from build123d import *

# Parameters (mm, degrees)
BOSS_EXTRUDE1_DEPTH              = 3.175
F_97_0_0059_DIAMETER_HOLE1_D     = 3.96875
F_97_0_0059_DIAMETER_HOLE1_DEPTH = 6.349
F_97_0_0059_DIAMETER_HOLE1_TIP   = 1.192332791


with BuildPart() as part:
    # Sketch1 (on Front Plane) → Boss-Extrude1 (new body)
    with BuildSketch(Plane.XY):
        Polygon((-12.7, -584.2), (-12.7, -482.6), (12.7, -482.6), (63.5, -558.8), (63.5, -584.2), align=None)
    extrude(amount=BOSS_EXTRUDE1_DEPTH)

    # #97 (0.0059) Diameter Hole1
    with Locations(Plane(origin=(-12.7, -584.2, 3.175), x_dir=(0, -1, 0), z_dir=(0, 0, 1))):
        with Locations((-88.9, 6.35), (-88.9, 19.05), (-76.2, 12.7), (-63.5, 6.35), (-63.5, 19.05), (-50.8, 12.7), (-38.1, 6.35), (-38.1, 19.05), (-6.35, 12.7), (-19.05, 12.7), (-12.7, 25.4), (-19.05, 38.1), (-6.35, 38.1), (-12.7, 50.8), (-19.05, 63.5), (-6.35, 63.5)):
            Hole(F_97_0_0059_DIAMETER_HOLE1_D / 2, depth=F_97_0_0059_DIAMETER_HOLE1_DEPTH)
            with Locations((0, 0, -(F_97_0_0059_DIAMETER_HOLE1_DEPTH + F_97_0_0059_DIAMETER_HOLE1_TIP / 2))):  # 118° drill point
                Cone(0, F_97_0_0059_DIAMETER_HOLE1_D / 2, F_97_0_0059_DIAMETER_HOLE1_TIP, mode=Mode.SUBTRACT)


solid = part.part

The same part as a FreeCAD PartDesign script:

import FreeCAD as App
import Part
import Sketcher

V = App.Vector
Q = App.Units.Quantity


def add_polygon(sketch, points):
    """Adds a closed chain of lines whose ends are joined by coincident constraints."""
    first, n = sketch.GeometryCount, len(points)
    for a, b in zip(points, points[1:] + points[:1]):
        sketch.addGeometry(Part.LineSegment(App.Vector(*a, 0), App.Vector(*b, 0)), False)
    for i in range(n):
        sketch.addConstraint(Sketcher.Constraint("Coincident", first + i, 2, first + (i + 1) % n, 1))

doc = App.newDocument("Part")
body = doc.addObject("PartDesign::Body", "Body")

# Sketch on XY plane
sketch1 = body.newObject("Sketcher::SketchObject", "Sketch")
sketch1.AttachmentSupport = (doc.getObject("XY_Plane"), [""])
sketch1.MapMode = "FlatFace"
add_polygon(sketch1, [(-13, -483), (-13, -584), (64, -584), (64, -559), (13, -483)])  # lines 0-4
sketch1.addConstraint([
    Sketcher.Constraint("Vertical", 0),
    Sketcher.Constraint("Horizontal", 1),
    Sketcher.Constraint("Vertical", 2),
    Sketcher.Constraint("Horizontal", 4),
    Sketcher.Constraint("Equal", 4, 2),
    Sketcher.Constraint("DistanceX", 1, 1, 1, 2, Q("3 in")),
    Sketcher.Constraint("DistanceX", 4, 2, 4, 1, Q("1 in")),
    Sketcher.Constraint("DistanceY", 0, 2, 0, 1, Q("4 in")),
    Sketcher.Constraint("DistanceY", 0, 2, -1, 1, Q("23 in")),
    Sketcher.Constraint("DistanceX", 0, 2, -1, 1, Q("0.5 in")),
])
pad1 = body.newObject("PartDesign::Pad", "Pad")
pad1.Profile = sketch1
pad1.Length = Q("0.125 in")

# Sketch on XY plane
sketch2 = body.newObject("Sketcher::SketchObject", "Sketch001")
sketch2.AttachmentSupport = (doc.getObject("XY_Plane"), [""])
sketch2.MapMode = "FlatFace"
sketch2.AttachmentOffset = App.Placement(V(0, 0, 0.125 * 25.4), App.Rotation())
sketch2.addGeometry([
    Part.Circle(V(-6.3, -495.3, 0), V(0, 0, 1), 2),  # 0
    Part.Circle(V(6.3, -495.3, 0), V(0, 0, 1), 2),  # 1
    Part.Circle(V(0, -508, 0), V(0, 0, 1), 2),  # 2
    Part.Circle(V(-6.3, -520.7, 0), V(0, 0, 1), 2),  # 3
    Part.Circle(V(6.3, -520.7, 0), V(0, 0, 1), 2),  # 4
    Part.Circle(V(0, -533.4, 0), V(0, 0, 1), 2),  # 5
    Part.Circle(V(-6.3, -546.1, 0), V(0, 0, 1), 2),  # 6
    Part.Circle(V(6.3, -546.1, 0), V(0, 0, 1), 2),  # 7
    Part.Circle(V(0, -577.9, 0), V(0, 0, 1), 2),  # 8
    Part.Circle(V(0, -565.1, 0), V(0, 0, 1), 2),  # 9
    Part.Circle(V(12.7, -571.5, 0), V(0, 0, 1), 2),  # 10
    Part.Circle(V(25.4, -565.1, 0), V(0, 0, 1), 2),  # 11
    Part.Circle(V(25.4, -577.9, 0), V(0, 0, 1), 2),  # 12
    Part.Circle(V(38.1, -571.5, 0), V(0, 0, 1), 2),  # 13
    Part.Circle(V(50.8, -565.1, 0), V(0, 0, 1), 2),  # 14
    Part.Circle(V(50.8, -577.9, 0), V(0, 0, 1), 2),  # 15
], False)
sketch2.addConstraint([
    Sketcher.Constraint("Equal", 0, 1),
    Sketcher.Constraint("Equal", 1, 2),
    Sketcher.Constraint("Equal", 2, 3),
    Sketcher.Constraint("Equal", 3, 4),
    Sketcher.Constraint("Equal", 4, 5),
    Sketcher.Constraint("Equal", 5, 6),
    Sketcher.Constraint("Equal", 6, 7),
    Sketcher.Constraint("Equal", 7, 8),
    Sketcher.Constraint("Equal", 8, 9),
    Sketcher.Constraint("Equal", 9, 10),
    Sketcher.Constraint("Equal", 10, 11),
    Sketcher.Constraint("Equal", 11, 12),
    Sketcher.Constraint("Equal", 12, 13),
    Sketcher.Constraint("Equal", 13, 14),
    Sketcher.Constraint("Equal", 14, 15),
    Sketcher.Constraint("Symmetric", 0, 3, 1, 3, -2),
    Sketcher.Constraint("Symmetric", 3, 3, 4, 3, -2),
    Sketcher.Constraint("Symmetric", 6, 3, 7, 3, -2),
    Sketcher.Constraint("PointOnObject", 2, 3, -2),
    Sketcher.Constraint("PointOnObject", 5, 3, -2),
    Sketcher.Constraint("PointOnObject", 8, 3, -2),
    Sketcher.Constraint("PointOnObject", 9, 3, -2),
    Sketcher.Constraint("Horizontal", 9, 3, 11, 3),
    Sketcher.Constraint("Horizontal", 8, 3, 12, 3),
    Sketcher.Constraint("Horizontal", 10, 3, 13, 3),
    Sketcher.Constraint("Horizontal", 11, 3, 14, 3),
    Sketcher.Constraint("Horizontal", 12, 3, 15, 3),
    Sketcher.Constraint("Vertical", 0, 3, 3, 3),
    Sketcher.Constraint("Vertical", 3, 3, 6, 3),
    Sketcher.Constraint("Vertical", 11, 3, 12, 3),
    Sketcher.Constraint("Vertical", 14, 3, 15, 3),
    Sketcher.Constraint("Diameter", 0, Q("0.15625 in")),
    Sketcher.Constraint("DistanceY", 2, 3, -1, 1, Q("20 in")),
    Sketcher.Constraint("DistanceY", 5, 3, -1, 1, Q("21 in")),
    Sketcher.Constraint("DistanceX", -1, 1, 11, 3, Q("1 in")),
    Sketcher.Constraint("DistanceX", -1, 1, 14, 3, Q("2 in")),
    Sketcher.Constraint("DistanceY", 3, 3, 0, 3, Q("1 in")),
    Sketcher.Constraint("DistanceY", 6, 3, 3, 3, Q("1 in")),
    Sketcher.Constraint("DistanceY", 10, 3, 7, 3, Q("1 in")),
    Sketcher.Constraint("DistanceX", 10, 3, 13, 3, Q("1 in")),
    Sketcher.Constraint("DistanceY", 0, 3, -1, 1, Q("19.5 in")),
    Sketcher.Constraint("DistanceX", -1, 1, 10, 3, Q("0.5 in")),
    Sketcher.Constraint("DistanceX", 0, 3, 1, 3, Q("0.5 in")),
    Sketcher.Constraint("DistanceY", 8, 3, 9, 3, Q("0.5 in")),
    Sketcher.Constraint("DistanceY", 8, 3, -1, 1, Q("22.75 in")),
])
doc.recompute()
hole = body.newObject("PartDesign::Hole", "Hole")
hole.Profile = sketch2
hole.ThreadType = "None"
hole.Diameter = Q("0.15625 in")
hole.DepthType = "Dimension"
hole.Depth = 6.349
hole.DrillPoint = "Angled"
hole.DrillPointAngle = 118

doc.recompute()
